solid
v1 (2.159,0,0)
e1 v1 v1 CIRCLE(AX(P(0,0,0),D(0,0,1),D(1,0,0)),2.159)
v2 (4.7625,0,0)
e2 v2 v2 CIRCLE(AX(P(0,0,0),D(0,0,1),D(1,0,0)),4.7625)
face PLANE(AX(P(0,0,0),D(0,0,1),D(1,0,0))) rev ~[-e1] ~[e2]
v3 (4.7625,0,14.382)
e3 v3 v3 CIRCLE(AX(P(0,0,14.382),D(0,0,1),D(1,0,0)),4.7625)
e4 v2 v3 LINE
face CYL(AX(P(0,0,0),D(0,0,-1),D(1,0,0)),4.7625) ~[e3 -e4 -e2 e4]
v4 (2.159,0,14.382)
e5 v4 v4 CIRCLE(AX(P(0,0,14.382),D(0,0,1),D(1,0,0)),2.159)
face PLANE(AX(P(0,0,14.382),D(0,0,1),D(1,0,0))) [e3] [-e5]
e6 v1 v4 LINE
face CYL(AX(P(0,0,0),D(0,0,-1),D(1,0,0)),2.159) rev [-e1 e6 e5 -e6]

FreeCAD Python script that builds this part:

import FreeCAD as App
import Part
import Sketcher
from FreeCAD import Vector
Q = App.Units.Quantity

doc = App.newDocument("Part")
body = doc.addObject("PartDesign::Body", "Body")

# Sketch on XY plane
sketch1 = body.newObject("Sketcher::SketchObject", "Sketch")
sketch1.AttachmentSupport = (doc.getObject("XY_Plane"), [""])
sketch1.MapMode = "FlatFace"
sketch1.addGeometry([
    Part.Circle(Vector(0, 0, 0), Vector(0, 0, 1), 4.8),
    Part.Circle(Vector(0, 0, 0), Vector(0, 0, 1), 2.2),
], False)
sketch1.addConstraint([
    Sketcher.Constraint("Coincident", 0, 3, -1, 1),
    Sketcher.Constraint("Coincident", 1, 3, -1, 1),
    Sketcher.Constraint("Diameter", 1, Q("0.17 in")),
    Sketcher.Constraint("Diameter", 0, Q("0.375 in")),
])
pad1 = body.newObject("PartDesign::Pad", "Pad")
pad1.Profile = sketch1
pad1.Length = 14.382

doc.recompute()
